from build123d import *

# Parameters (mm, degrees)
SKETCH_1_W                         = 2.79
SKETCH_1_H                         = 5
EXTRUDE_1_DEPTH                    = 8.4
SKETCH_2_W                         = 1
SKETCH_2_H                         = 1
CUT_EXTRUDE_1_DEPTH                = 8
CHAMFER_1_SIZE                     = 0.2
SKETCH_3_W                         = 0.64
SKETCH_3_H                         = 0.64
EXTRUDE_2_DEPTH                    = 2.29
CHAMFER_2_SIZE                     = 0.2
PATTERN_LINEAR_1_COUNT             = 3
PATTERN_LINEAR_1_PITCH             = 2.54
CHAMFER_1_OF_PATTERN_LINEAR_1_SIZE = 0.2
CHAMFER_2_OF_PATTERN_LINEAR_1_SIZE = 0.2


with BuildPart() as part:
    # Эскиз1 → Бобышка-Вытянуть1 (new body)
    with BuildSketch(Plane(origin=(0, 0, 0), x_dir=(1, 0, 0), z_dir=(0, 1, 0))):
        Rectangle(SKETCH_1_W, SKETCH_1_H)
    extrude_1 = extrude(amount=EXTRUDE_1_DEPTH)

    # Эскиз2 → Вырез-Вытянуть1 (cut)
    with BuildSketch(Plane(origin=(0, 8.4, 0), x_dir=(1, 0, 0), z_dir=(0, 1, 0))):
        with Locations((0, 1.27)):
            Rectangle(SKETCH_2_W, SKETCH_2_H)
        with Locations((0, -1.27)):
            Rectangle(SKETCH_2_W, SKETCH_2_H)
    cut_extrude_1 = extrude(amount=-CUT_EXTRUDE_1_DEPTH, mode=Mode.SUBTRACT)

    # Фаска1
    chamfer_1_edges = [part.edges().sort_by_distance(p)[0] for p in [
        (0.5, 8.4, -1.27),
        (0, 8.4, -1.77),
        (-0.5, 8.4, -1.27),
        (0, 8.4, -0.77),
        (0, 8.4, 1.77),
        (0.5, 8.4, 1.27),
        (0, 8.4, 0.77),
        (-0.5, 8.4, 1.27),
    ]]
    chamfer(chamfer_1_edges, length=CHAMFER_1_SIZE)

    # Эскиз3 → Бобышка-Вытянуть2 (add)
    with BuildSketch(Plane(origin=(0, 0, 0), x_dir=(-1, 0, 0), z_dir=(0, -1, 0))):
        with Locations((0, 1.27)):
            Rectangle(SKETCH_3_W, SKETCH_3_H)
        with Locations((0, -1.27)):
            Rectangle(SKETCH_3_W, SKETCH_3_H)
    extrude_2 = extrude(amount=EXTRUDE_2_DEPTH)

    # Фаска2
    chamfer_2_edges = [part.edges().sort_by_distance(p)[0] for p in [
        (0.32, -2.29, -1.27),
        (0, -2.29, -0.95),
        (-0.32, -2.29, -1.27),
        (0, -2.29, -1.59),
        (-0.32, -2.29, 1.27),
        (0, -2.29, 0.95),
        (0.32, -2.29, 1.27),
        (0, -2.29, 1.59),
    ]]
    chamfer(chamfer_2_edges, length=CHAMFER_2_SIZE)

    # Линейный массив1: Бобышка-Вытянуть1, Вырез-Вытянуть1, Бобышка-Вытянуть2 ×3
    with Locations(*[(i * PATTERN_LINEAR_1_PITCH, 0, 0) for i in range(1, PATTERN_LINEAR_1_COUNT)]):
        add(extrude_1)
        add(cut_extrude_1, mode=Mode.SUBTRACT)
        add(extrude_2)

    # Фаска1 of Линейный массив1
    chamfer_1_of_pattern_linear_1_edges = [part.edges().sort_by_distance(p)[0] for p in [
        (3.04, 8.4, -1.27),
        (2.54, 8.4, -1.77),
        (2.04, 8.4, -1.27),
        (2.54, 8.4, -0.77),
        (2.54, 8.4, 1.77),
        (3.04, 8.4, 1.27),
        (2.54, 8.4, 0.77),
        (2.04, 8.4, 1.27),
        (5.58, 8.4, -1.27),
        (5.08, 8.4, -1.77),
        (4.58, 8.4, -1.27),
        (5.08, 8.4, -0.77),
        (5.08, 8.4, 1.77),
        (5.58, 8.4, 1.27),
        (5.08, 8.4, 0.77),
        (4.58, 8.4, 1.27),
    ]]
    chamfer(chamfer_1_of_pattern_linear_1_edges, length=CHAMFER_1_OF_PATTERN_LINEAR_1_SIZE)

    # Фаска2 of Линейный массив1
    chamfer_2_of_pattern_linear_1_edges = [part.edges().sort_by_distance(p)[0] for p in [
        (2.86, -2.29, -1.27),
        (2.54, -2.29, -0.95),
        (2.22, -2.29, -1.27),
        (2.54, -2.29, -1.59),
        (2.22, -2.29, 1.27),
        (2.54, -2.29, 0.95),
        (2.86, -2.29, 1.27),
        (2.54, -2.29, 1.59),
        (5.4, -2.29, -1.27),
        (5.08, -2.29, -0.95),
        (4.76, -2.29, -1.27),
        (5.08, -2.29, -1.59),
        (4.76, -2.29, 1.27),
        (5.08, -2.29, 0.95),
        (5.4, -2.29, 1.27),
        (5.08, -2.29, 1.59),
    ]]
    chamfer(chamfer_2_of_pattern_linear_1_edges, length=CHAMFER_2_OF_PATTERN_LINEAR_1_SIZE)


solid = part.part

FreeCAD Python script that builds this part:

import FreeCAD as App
import Part
import Sketcher


def edges_at(feature, points):
    """Names of the edges that pass closest to the given points."""
    edges = feature.Shape.Edges
    near = lambda p: min(range(len(edges)), key=lambda i: edges[i].distToShape(Part.Vertex(*p))[0])
    return sorted({f"Edge{near(p) + 1}" for p in points})


def add_polygon(sketch, points):
    """Adds a closed chain of lines whose ends are joined by coincident constraints."""
    first, n = sketch.GeometryCount, len(points)
    for a, b in zip(points, points[1:] + points[:1]):
        sketch.addGeometry(Part.LineSegment(App.Vector(*a, 0), App.Vector(*b, 0)), False)
    for i in range(n):
        sketch.addConstraint(Sketcher.Constraint("Coincident", first + i, 2, first + (i + 1) % n, 1))

doc = App.newDocument("Part")
body = doc.addObject("PartDesign::Body", "Body")

sketch1 = doc.addObject("Sketcher::SketchObject", "Sketch")
body.addObject(sketch1)
sketch1.AttachmentSupport = (doc.XZ_Plane, [""])
sketch1.MapMode = "FlatFace"
add_polygon(sketch1, [(-1.395, -2.5), (-1.395, 2.5), (1.395, 2.5), (1.395, -2.5)])
sketch1.addConstraint([
    Sketcher.Constraint("Vertical", 0),
    Sketcher.Constraint("Horizontal", 1),
    Sketcher.Constraint("Vertical", 2),
    Sketcher.Constraint("Horizontal", 3),
    Sketcher.Constraint("Symmetric", 0, 2, 2, 2, -1, 1),
    Sketcher.Constraint("DistanceY", 0, 1, 0, 2, 5.0),
    Sketcher.Constraint("DistanceX", 1, 1, 1, 2, 2.79),
])
pad1 = doc.addObject("PartDesign::Pad", "Pad")
body.addObject(pad1)
pad1.Profile = sketch1
pad1.Length = 8.4
pad1.Reversed = True

sketch2 = doc.addObject("Sketcher::SketchObject", "Sketch001")
body.addObject(sketch2)
sketch2.AttachmentSupport = (doc.XZ_Plane, [""])
sketch2.MapMode = "FlatFace"
sketch2.AttachmentOffset = App.Placement(App.Vector(0, 0, -8.4), App.Rotation())
add_polygon(sketch2, [(-0.5, -1.77), (-0.5, -0.77), (0.5, -0.77), (0.5, -1.77)])
add_polygon(sketch2, [(-0.5, 0.77), (-0.5, 1.77), (0.5, 1.77), (0.5, 0.77)])
sketch2.addConstraint([
    Sketcher.Constraint("Vertical", 0),
    Sketcher.Constraint("Horizontal", 1),
    Sketcher.Constraint("Vertical", 2),
    Sketcher.Constraint("Horizontal", 3),
    Sketcher.Constraint("Vertical", 4),
    Sketcher.Constraint("Horizontal", 5),
    Sketcher.Constraint("Vertical", 6),
    Sketcher.Constraint("Horizontal", 7),
    Sketcher.Constraint("Symmetric", 2, 2, 4, 2, -1, 1),
    Sketcher.Constraint("Symmetric", 0, 2, 6, 2, -1, 1),
    Sketcher.Constraint("Vertical", 3, 2, 4, 2),
    Sketcher.Constraint("Equal", 7, 0),
    Sketcher.Constraint("DistanceX", 1, 1, 1, 2, 1.0),
    Sketcher.Constraint("DistanceY", 0, 2, -1, 1, 0.77),
])
pocket1 = doc.addObject("PartDesign::Pocket", "Pocket")
body.addObject(pocket1)
pocket1.Profile = sketch2
pocket1.Length = 8
pocket1.Reversed = True
doc.recompute()

chamfer = doc.addObject("PartDesign::Chamfer", "Chamfer")
body.addObject(chamfer)
chamfer.Base = (pocket1, edges_at(pocket1, [
    (0.5, 8.4, -1.27),
    (0, 8.4, -1.77),
    (-0.5, 8.4, -1.27),
    (0, 8.4, -0.77),
    (0, 8.4, 1.77),
    (0.5, 8.4, 1.27),
    (0, 8.4, 0.77),
    (-0.5, 8.4, 1.27),
]))
chamfer.Size = 0.2

sketch3 = doc.addObject("Sketcher::SketchObject", "Sketch002")
body.addObject(sketch3)
sketch3.AttachmentSupport = (doc.XZ_Plane, [""])
sketch3.MapMode = "FlatFace"
add_polygon(sketch3, [(0.32, -1.59), (0.32, -0.95), (-0.32, -0.95), (-0.32, -1.59)])
add_polygon(sketch3, [(0.32, 0.95), (0.32, 1.59), (-0.32, 1.59), (-0.32, 0.95)])
sketch3.addConstraint([
    Sketcher.Constraint("Vertical", 0),
    Sketcher.Constraint("Horizontal", 1),
    Sketcher.Constraint("Vertical", 2),
    Sketcher.Constraint("Horizontal", 3),
    Sketcher.Constraint("Vertical", 4),
    Sketcher.Constraint("Horizontal", 5),
    Sketcher.Constraint("Vertical", 6),
    Sketcher.Constraint("Horizontal", 7),
    Sketcher.Constraint("Symmetric", 2, 2, 4, 2, -1, 1),
    Sketcher.Constraint("Symmetric", 0, 2, 6, 2, -1, 1),
    Sketcher.Constraint("Vertical", 3, 2, 4, 2),
    Sketcher.Constraint("Equal", 7, 0),
    Sketcher.Constraint("DistanceX", 1, 2, 1, 1, 0.64),
    Sketcher.Constraint("DistanceY", 1, 2, 6, 2, 1.9),
])
pad2 = doc.addObject("PartDesign::Pad", "Pad001")
body.addObject(pad2)
pad2.Profile = sketch3
pad2.Length = 2.29
doc.recompute()

chamfer2 = doc.addObject("PartDesign::Chamfer", "Chamfer001")
body.addObject(chamfer2)
chamfer2.Base = (pad2, edges_at(pad2, [
    (0.32, -2.29, -1.27),
    (0, -2.29, -0.95),
    (-0.32, -2.29, -1.27),
    (0, -2.29, -1.59),
    (-0.32, -2.29, 1.27),
    (0, -2.29, 0.95),
    (0.32, -2.29, 1.27),
    (0, -2.29, 1.59),
]))
chamfer2.Size = 0.2
doc.recompute()

linearpattern = doc.addObject("PartDesign::LinearPattern", "LinearPattern")
body.addObject(linearpattern)
linearpattern.Originals = [pad1, pocket1, pad2]
linearpattern.Direction = (doc.X_Axis, [""])
linearpattern.Mode = "offset"
linearpattern.Offset = 2.54
linearpattern.Occurrences = 3
body.Tip = linearpattern
doc.recompute()

chamfer3 = doc.addObject("PartDesign::Chamfer", "Chamfer002")
body.addObject(chamfer3)
chamfer3.Base = (linearpattern, edges_at(linearpattern, [
    (3.04, 8.4, -1.27),
    (2.54, 8.4, -1.77),
    (2.04, 8.4, -1.27),
    (2.54, 8.4, -0.77),
    (2.54, 8.4, 1.77),
    (3.04, 8.4, 1.27),
    (2.54, 8.4, 0.77),
    (2.04, 8.4, 1.27),
    (5.58, 8.4, -1.27),
    (5.08, 8.4, -1.77),
    (4.58, 8.4, -1.27),
    (5.08, 8.4, -0.77),
    (5.08, 8.4, 1.77),
    (5.58, 8.4, 1.27),
    (5.08, 8.4, 0.77),
    (4.58, 8.4, 1.27),
]))
chamfer3.Size = 0.2
doc.recompute()

chamfer4 = doc.addObject("PartDesign::Chamfer", "Chamfer003")
body.addObject(chamfer4)
chamfer4.Base = (chamfer3, edges_at(chamfer3, [
    (2.86, -2.29, -1.27),
    (2.54, -2.29, -0.95),
    (2.22, -2.29, -1.27),
    (2.54, -2.29, -1.59),
    (2.22, -2.29, 1.27),
    (2.54, -2.29, 0.95),
    (2.86, -2.29, 1.27),
    (2.54, -2.29, 1.59),
    (5.4, -2.29, -1.27),
    (5.08, -2.29, -0.95),
    (4.76, -2.29, -1.27),
    (5.08, -2.29, -1.59),
    (4.76, -2.29, 1.27),
    (5.08, -2.29, 0.95),
    (5.4, -2.29, 1.27),
    (5.08, -2.29, 1.59),
]))
chamfer4.Size = 0.2

doc.recompute()
